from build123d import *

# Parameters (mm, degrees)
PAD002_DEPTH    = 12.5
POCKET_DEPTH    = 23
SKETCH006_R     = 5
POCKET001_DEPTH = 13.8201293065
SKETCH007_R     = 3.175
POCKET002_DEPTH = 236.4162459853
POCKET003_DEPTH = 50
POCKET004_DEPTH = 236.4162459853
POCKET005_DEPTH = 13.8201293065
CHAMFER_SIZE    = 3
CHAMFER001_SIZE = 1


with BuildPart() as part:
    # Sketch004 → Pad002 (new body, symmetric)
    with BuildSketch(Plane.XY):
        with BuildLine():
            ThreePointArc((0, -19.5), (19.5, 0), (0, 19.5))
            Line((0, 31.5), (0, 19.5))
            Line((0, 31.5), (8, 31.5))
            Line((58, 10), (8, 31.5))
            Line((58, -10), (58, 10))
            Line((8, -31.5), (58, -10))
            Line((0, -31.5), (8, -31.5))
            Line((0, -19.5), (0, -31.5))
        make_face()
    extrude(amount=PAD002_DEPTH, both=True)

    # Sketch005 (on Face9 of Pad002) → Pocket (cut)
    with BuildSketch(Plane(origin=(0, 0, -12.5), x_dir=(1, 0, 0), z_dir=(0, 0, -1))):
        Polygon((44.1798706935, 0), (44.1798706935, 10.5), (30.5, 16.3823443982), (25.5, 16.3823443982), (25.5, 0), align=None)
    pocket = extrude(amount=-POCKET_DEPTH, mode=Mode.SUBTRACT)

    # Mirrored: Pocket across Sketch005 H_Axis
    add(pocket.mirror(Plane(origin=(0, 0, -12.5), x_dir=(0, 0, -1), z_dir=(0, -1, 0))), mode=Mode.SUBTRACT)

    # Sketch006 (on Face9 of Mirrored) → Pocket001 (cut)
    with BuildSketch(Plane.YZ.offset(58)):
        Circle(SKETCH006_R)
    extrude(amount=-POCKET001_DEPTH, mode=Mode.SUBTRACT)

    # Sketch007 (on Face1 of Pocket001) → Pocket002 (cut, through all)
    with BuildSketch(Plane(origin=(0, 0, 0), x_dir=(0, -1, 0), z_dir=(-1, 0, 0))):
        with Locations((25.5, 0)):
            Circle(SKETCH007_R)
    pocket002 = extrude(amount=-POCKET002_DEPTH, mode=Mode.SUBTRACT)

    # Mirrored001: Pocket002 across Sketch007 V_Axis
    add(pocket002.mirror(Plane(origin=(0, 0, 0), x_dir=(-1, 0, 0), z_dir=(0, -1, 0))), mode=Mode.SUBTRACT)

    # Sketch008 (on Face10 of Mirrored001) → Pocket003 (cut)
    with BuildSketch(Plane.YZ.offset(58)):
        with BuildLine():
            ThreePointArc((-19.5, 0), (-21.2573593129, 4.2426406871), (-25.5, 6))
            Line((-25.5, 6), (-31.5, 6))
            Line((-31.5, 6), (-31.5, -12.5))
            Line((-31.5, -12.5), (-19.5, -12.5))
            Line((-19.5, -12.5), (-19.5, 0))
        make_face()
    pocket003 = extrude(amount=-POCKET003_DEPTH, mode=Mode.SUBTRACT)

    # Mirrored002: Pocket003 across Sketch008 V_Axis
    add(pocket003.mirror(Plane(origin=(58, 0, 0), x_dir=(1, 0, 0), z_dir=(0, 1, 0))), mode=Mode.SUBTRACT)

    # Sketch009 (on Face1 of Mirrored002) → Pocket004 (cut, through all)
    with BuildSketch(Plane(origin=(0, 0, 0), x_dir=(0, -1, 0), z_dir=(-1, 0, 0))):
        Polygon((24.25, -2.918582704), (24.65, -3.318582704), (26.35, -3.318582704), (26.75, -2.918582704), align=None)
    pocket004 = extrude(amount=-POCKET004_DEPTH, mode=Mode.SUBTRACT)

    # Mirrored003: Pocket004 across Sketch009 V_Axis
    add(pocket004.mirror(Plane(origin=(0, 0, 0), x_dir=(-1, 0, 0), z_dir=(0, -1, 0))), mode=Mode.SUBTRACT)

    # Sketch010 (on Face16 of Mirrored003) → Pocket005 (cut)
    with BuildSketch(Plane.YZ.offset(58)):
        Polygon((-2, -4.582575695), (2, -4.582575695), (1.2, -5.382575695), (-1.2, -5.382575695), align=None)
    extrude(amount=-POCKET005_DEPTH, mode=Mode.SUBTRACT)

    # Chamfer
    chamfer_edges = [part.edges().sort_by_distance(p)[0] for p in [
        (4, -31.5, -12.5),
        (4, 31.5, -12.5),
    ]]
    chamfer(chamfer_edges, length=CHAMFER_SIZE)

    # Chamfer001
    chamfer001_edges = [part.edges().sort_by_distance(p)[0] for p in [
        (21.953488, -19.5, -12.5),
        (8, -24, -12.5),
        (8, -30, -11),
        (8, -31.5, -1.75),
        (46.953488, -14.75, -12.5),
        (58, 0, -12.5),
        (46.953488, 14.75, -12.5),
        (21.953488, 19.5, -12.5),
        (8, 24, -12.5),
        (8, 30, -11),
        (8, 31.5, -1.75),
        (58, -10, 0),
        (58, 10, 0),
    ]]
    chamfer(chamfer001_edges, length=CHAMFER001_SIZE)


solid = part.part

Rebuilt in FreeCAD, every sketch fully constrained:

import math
import FreeCAD as App
import Part
import Sketcher
from FreeCAD import Vector


def edges_at(feature, points):
    """Names of the edges that pass closest to the given points."""
    edges = feature.Shape.Edges
    near = lambda p: min(range(len(edges)), key=lambda i: edges[i].distToShape(Part.Vertex(*p))[0])
    return sorted({f"Edge{near(p) + 1}" for p in points})

doc = App.newDocument("Part")
body = doc.addObject("PartDesign::Body", "Body")

sketch1 = body.newObject("Sketcher::SketchObject", "Sketch")
sketch1.AttachmentSupport = (doc.getObject("XY_Plane"), [""])
sketch1.MapMode = "FlatFace"
sketch1.addGeometry([
    Part.ArcOfCircle(Part.Circle(Vector(0, 0, 0), Vector(0, 0, 1), 19.5), math.radians(-90), math.radians(90)),
    Part.LineSegment(Vector(0, -19.5, 0), Vector(0, -31.5, 0)),
    Part.LineSegment(Vector(0, -31.5, 0), Vector(8, -31.5, 0)),
    Part.LineSegment(Vector(8, -31.5, 0), Vector(58, -10, 0)),
    Part.LineSegment(Vector(58, -10, 0), Vector(58, 10, 0)),
    Part.LineSegment(Vector(58, 10, 0), Vector(8, 31.5, 0)),
    Part.LineSegment(Vector(8, 31.5, 0), Vector(0, 31.5, 0)),
    Part.LineSegment(Vector(0, 31.5, 0), Vector(0, 19.5, 0)),
], False)
sketch1.addConstraint([
    Sketcher.Constraint("Coincident", 0, 1, 1, 1),
    Sketcher.Constraint("Coincident", 1, 2, 2, 1),
    Sketcher.Constraint("Coincident", 2, 2, 3, 1),
    Sketcher.Constraint("Coincident", 3, 2, 4, 1),
    Sketcher.Constraint("Coincident", 4, 2, 5, 1),
    Sketcher.Constraint("Coincident", 5, 2, 6, 1),
    Sketcher.Constraint("Coincident", 6, 2, 7, 1),
    Sketcher.Constraint("Coincident", 7, 2, 0, 2),
    Sketcher.Constraint("Vertical", 1),
    Sketcher.Constraint("Horizontal", 2),
    Sketcher.Constraint("Vertical", 4),
    Sketcher.Constraint("Horizontal", 6),
    Sketcher.Constraint("Vertical", 7),
    Sketcher.Constraint("Coincident", 0, 3, -1, 1),
    Sketcher.Constraint("Symmetric", 1, 2, 6, 2, -1, 1),
    Sketcher.Constraint("PointOnObject", 0, 1, -2),
    Sketcher.Constraint("Vertical", 2, 2, 5, 2),
    Sketcher.Constraint("Equal", 3, 5),
    Sketcher.Constraint("Radius", 0, 19.5),
    Sketcher.Constraint("DistanceX", 2, 1, 2, 2, 8.0),
    Sketcher.Constraint("DistanceY", 1, 2, 1, 1, 12.0),
    Sketcher.Constraint("DistanceY", 4, 1, 4, 2, 20.0),
    Sketcher.Constraint("DistanceX", -1, 1, 3, 2, 58.0),
])
pad1 = body.newObject("PartDesign::Pad", "Pad")
pad1.Profile = sketch1
pad1.Length = 25
pad1.Midplane = True

sketch2 = body.newObject("Sketcher::SketchObject", "Sketch001")
sketch2.AttachmentSupport = (doc.getObject("XY_Plane"), [""])
sketch2.MapMode = "FlatFace"
sketch2.AttachmentOffset = App.Placement(Vector(0, 0, -12.5), App.Rotation())
sketch2.addGeometry([
    Part.LineSegment(Vector(44.179871, 0, 0), Vector(44.179871, -10.5, 0)),
    Part.LineSegment(Vector(44.179871, -10.5, 0), Vector(30.5, -16.382344, 0)),
    Part.LineSegment(Vector(30.5, -16.382344, 0), Vector(25.5, -16.382344, 0)),
    Part.LineSegment(Vector(25.5, -16.382344, 0), Vector(25.5, 0, 0)),
    Part.LineSegment(Vector(25.5, 0, 0), Vector(44.179871, 0, 0)),
], False)
sketch2.addConstraint([
    Sketcher.Constraint("Coincident", 0, 2, 1, 1),
    Sketcher.Constraint("Coincident", 1, 2, 2, 1),
    Sketcher.Constraint("Coincident", 2, 2, 3, 1),
    Sketcher.Constraint("Coincident", 3, 2, 4, 1),
    Sketcher.Constraint("Coincident", 4, 2, 0, 1),
    Sketcher.Constraint("Vertical", 0),
    Sketcher.Constraint("Horizontal", 2),
    Sketcher.Constraint("Vertical", 3),
    Sketcher.Constraint("Horizontal", 4),
    Sketcher.Constraint("PointOnObject", 3, 2, -1),
    Sketcher.Constraint("DistanceX", 2, 2, 2, 1, 5.0),
    Sketcher.Constraint("DistanceY", 0, 2, 0, 1, 10.5),
    Sketcher.Constraint("DistanceX", -1, 1, 1, 2, 30.5),
    Sketcher.Constraint("DistanceX", 4, 1, 4, 2, 18.679871),
    Sketcher.Constraint("DistanceY", 3, 1, 3, 2, 16.382344),
])
pocket1 = body.newObject("PartDesign::Pocket", "Pocket")
pocket1.Profile = sketch2
pocket1.Length = 23
pocket1.Reversed = True
doc.recompute()

mirrored = body.newObject("PartDesign::Mirrored", "Mirrored")
mirrored.Originals = [pocket1]
mirrored.MirrorPlane = (doc.getObject("XZ_Plane"), [""])
body.Tip = mirrored

sketch3 = body.newObject("Sketcher::SketchObject", "Sketch002")
sketch3.AttachmentSupport = (doc.getObject("YZ_Plane"), [""])
sketch3.MapMode = "FlatFace"
sketch3.AttachmentOffset = App.Placement(Vector(0, 0, 58), App.Rotation())
sketch3.addGeometry(Part.Circle(Vector(0, 0, 0), Vector(0, 0, 1), 5), False)
sketch3.addConstraint([
    Sketcher.Constraint("Coincident", 0, 3, -1, 1),
    Sketcher.Constraint("Diameter", 0, 10.0),
])
pocket2 = body.newObject("PartDesign::Pocket", "Pocket001")
pocket2.Profile = sketch3
pocket2.Length = 13.820129

sketch4 = body.newObject("Sketcher::SketchObject", "Sketch003")
sketch4.AttachmentSupport = (doc.getObject("YZ_Plane"), [""])
sketch4.MapMode = "FlatFace"
sketch4.addGeometry(Part.Circle(Vector(-25.5, 0, 0), Vector(0, 0, 1), 3.175), False)
sketch4.addConstraint([
    Sketcher.Constraint("PointOnObject", 0, 3, -1),
    Sketcher.Constraint("Diameter", 0, 6.35),
    Sketcher.Constraint("DistanceX", 0, 3, -1, 1, 25.5),
])
pocket3 = body.newObject("PartDesign::Pocket", "Pocket002")
pocket3.Profile = sketch4
pocket3.Type = "ThroughAll"
pocket3.Reversed = True
doc.recompute()

mirrored2 = body.newObject("PartDesign::Mirrored", "Mirrored001")
mirrored2.Originals = [pocket3]
mirrored2.MirrorPlane = (doc.getObject("XZ_Plane"), [""])
body.Tip = mirrored2

sketch5 = body.newObject("Sketcher::SketchObject", "Sketch004")
sketch5.AttachmentSupport = (doc.getObject("YZ_Plane"), [""])
sketch5.MapMode = "FlatFace"
sketch5.AttachmentOffset = App.Placement(Vector(0, 0, 58), App.Rotation())
sketch5.addGeometry([
    Part.ArcOfCircle(Part.Circle(Vector(-25.5, 0, 0), Vector(0, 0, 1), 6), math.radians(0), math.radians(90)),
    Part.LineSegment(Vector(-25.5, 6, 0), Vector(-31.5, 6, 0)),
    Part.LineSegment(Vector(-31.5, 6, 0), Vector(-31.5, -12.5, 0)),
    Part.LineSegment(Vector(-31.5, -12.5, 0), Vector(-19.5, -12.5, 0)),
    Part.LineSegment(Vector(-19.5, -12.5, 0), Vector(-19.5, 0, 0)),
], False)
sketch5.addConstraint([
    Sketcher.Constraint("Tangent", 0, 2, 1, 1),
    Sketcher.Constraint("Coincident", 1, 2, 2, 1),
    Sketcher.Constraint("Coincident", 2, 2, 3, 1),
    Sketcher.Constraint("Coincident", 3, 2, 4, 1),
    Sketcher.Constraint("Tangent", 4, 2, 0, 1),
    Sketcher.Constraint("Horizontal", 1),
    Sketcher.Constraint("Vertical", 2),
    Sketcher.Constraint("Horizontal", 3),
    Sketcher.Constraint("Vertical", 4),
    Sketcher.Constraint("PointOnObject", 0, 3, -1),
    Sketcher.Constraint("Radius", 0, 6.0),
    Sketcher.Constraint("DistanceX", 1, 2, 1, 1, 6.0),
    Sketcher.Constraint("DistanceY", 2, 2, 2, 1, 18.5),
    Sketcher.Constraint("DistanceX", 0, 3, -1, 1, 25.5),
])
pocket4 = body.newObject("PartDesign::Pocket", "Pocket003")
pocket4.Profile = sketch5
pocket4.Length = 50
doc.recompute()

mirrored3 = body.newObject("PartDesign::Mirrored", "Mirrored002")
mirrored3.Originals = [pocket4]
mirrored3.MirrorPlane = (doc.getObject("XZ_Plane"), [""])
body.Tip = mirrored3

sketch6 = body.newObject("Sketcher::SketchObject", "Sketch005")
sketch6.AttachmentSupport = (doc.getObject("YZ_Plane"), [""])
sketch6.MapMode = "FlatFace"
sketch6.addGeometry([
    Part.LineSegment(Vector(-24.25, -2.918583, 0), Vector(-24.65, -3.318583, 0)),
    Part.LineSegment(Vector(-24.65, -3.318583, 0), Vector(-26.35, -3.318583, 0)),
    Part.LineSegment(Vector(-26.35, -3.318583, 0), Vector(-26.75, -2.918583, 0)),
    Part.LineSegment(Vector(-26.75, -2.918583, 0), Vector(-24.25, -2.918583, 0)),
], False)
sketch6.addConstraint([
    Sketcher.Constraint("Coincident", 0, 2, 1, 1),
    Sketcher.Constraint("Coincident", 1, 2, 2, 1),
    Sketcher.Constraint("Coincident", 2, 2, 3, 1),
    Sketcher.Constraint("Coincident", 3, 2, 0, 1),
    Sketcher.Constraint("Horizontal", 1),
    Sketcher.Constraint("Horizontal", 3),
    Sketcher.Constraint("Perpendicular", 0, 2),
    Sketcher.Constraint("Equal", 0, 2),
    Sketcher.Constraint("DistanceX", 1, 2, 1, 1, 1.7),
    Sketcher.Constraint("DistanceX", 3, 1, 3, 2, 2.5),
    Sketcher.Constraint("DistanceX", 0, 2, -1, 1, 24.65),
    Sketcher.Constraint("DistanceY", 0, 2, -1, 1, 3.318583),
])
pocket5 = body.newObject("PartDesign::Pocket", "Pocket004")
pocket5.Profile = sketch6
pocket5.Type = "ThroughAll"
pocket5.Reversed = True
doc.recompute()

mirrored4 = body.newObject("PartDesign::Mirrored", "Mirrored003")
mirrored4.Originals = [pocket5]
mirrored4.MirrorPlane = (doc.getObject("XZ_Plane"), [""])
body.Tip = mirrored4

sketch7 = body.newObject("Sketcher::SketchObject", "Sketch006")
sketch7.AttachmentSupport = (doc.getObject("YZ_Plane"), [""])
sketch7.MapMode = "FlatFace"
sketch7.AttachmentOffset = App.Placement(Vector(0, 0, 58), App.Rotation())
sketch7.addGeometry([
    Part.LineSegment(Vector(2, -4.582576, 0), Vector(-2, -4.582576, 0)),
    Part.LineSegment(Vector(-2, -4.582576, 0), Vector(-1.2, -5.382576, 0)),
    Part.LineSegment(Vector(-1.2, -5.382576, 0), Vector(1.2, -5.382576, 0)),
    Part.LineSegment(Vector(1.2, -5.382576, 0), Vector(2, -4.582576, 0)),
], False)
sketch7.addConstraint([
    Sketcher.Constraint("Coincident", 0, 2, 1, 1),
    Sketcher.Constraint("Coincident", 1, 2, 2, 1),
    Sketcher.Constraint("Coincident", 2, 2, 3, 1),
    Sketcher.Constraint("Coincident", 3, 2, 0, 1),
    Sketcher.Constraint("Horizontal", 0),
    Sketcher.Constraint("Horizontal", 2),
    Sketcher.Constraint("Perpendicular", 1, 3),
    Sketcher.Constraint("Equal", 1, 3),
    Sketcher.Constraint("DistanceX", 0, 2, 0, 1, 4.0),
    Sketcher.Constraint("DistanceX", 2, 1, 2, 2, 2.4),
    Sketcher.Constraint("DistanceX", 0, 2, -1, 1, 2.0),
    Sketcher.Constraint("DistanceY", 0, 2, -1, 1, 4.582576),
])
pocket6 = body.newObject("PartDesign::Pocket", "Pocket005")
pocket6.Profile = sketch7
pocket6.Length = 13.820129
doc.recompute()

chamfer = body.newObject("PartDesign::Chamfer", "Chamfer")
chamfer.Base = (pocket6, edges_at(pocket6, [(4, -31.5, -12.5), (4, 31.5, -12.5)]))
chamfer.Size = 3
doc.recompute()

chamfer2 = body.newObject("PartDesign::Chamfer", "Chamfer001")
chamfer2.Base = (chamfer, edges_at(chamfer, [
    (21.953, -19.5, -12.5),
    (8, -24, -12.5),
    (8, -30, -11),
    (8, -31.5, -1.75),
    (46.953, -14.75, -12.5),
    (58, 0, -12.5),
    (46.953, 14.75, -12.5),
    (21.953, 19.5, -12.5),
    (8, 24, -12.5),
    (8, 30, -11),
    (8, 31.5, -1.75),
    (58, -10, 0),
    (58, 10, 0),
]))
chamfer2.Size = 1

doc.recompute()
